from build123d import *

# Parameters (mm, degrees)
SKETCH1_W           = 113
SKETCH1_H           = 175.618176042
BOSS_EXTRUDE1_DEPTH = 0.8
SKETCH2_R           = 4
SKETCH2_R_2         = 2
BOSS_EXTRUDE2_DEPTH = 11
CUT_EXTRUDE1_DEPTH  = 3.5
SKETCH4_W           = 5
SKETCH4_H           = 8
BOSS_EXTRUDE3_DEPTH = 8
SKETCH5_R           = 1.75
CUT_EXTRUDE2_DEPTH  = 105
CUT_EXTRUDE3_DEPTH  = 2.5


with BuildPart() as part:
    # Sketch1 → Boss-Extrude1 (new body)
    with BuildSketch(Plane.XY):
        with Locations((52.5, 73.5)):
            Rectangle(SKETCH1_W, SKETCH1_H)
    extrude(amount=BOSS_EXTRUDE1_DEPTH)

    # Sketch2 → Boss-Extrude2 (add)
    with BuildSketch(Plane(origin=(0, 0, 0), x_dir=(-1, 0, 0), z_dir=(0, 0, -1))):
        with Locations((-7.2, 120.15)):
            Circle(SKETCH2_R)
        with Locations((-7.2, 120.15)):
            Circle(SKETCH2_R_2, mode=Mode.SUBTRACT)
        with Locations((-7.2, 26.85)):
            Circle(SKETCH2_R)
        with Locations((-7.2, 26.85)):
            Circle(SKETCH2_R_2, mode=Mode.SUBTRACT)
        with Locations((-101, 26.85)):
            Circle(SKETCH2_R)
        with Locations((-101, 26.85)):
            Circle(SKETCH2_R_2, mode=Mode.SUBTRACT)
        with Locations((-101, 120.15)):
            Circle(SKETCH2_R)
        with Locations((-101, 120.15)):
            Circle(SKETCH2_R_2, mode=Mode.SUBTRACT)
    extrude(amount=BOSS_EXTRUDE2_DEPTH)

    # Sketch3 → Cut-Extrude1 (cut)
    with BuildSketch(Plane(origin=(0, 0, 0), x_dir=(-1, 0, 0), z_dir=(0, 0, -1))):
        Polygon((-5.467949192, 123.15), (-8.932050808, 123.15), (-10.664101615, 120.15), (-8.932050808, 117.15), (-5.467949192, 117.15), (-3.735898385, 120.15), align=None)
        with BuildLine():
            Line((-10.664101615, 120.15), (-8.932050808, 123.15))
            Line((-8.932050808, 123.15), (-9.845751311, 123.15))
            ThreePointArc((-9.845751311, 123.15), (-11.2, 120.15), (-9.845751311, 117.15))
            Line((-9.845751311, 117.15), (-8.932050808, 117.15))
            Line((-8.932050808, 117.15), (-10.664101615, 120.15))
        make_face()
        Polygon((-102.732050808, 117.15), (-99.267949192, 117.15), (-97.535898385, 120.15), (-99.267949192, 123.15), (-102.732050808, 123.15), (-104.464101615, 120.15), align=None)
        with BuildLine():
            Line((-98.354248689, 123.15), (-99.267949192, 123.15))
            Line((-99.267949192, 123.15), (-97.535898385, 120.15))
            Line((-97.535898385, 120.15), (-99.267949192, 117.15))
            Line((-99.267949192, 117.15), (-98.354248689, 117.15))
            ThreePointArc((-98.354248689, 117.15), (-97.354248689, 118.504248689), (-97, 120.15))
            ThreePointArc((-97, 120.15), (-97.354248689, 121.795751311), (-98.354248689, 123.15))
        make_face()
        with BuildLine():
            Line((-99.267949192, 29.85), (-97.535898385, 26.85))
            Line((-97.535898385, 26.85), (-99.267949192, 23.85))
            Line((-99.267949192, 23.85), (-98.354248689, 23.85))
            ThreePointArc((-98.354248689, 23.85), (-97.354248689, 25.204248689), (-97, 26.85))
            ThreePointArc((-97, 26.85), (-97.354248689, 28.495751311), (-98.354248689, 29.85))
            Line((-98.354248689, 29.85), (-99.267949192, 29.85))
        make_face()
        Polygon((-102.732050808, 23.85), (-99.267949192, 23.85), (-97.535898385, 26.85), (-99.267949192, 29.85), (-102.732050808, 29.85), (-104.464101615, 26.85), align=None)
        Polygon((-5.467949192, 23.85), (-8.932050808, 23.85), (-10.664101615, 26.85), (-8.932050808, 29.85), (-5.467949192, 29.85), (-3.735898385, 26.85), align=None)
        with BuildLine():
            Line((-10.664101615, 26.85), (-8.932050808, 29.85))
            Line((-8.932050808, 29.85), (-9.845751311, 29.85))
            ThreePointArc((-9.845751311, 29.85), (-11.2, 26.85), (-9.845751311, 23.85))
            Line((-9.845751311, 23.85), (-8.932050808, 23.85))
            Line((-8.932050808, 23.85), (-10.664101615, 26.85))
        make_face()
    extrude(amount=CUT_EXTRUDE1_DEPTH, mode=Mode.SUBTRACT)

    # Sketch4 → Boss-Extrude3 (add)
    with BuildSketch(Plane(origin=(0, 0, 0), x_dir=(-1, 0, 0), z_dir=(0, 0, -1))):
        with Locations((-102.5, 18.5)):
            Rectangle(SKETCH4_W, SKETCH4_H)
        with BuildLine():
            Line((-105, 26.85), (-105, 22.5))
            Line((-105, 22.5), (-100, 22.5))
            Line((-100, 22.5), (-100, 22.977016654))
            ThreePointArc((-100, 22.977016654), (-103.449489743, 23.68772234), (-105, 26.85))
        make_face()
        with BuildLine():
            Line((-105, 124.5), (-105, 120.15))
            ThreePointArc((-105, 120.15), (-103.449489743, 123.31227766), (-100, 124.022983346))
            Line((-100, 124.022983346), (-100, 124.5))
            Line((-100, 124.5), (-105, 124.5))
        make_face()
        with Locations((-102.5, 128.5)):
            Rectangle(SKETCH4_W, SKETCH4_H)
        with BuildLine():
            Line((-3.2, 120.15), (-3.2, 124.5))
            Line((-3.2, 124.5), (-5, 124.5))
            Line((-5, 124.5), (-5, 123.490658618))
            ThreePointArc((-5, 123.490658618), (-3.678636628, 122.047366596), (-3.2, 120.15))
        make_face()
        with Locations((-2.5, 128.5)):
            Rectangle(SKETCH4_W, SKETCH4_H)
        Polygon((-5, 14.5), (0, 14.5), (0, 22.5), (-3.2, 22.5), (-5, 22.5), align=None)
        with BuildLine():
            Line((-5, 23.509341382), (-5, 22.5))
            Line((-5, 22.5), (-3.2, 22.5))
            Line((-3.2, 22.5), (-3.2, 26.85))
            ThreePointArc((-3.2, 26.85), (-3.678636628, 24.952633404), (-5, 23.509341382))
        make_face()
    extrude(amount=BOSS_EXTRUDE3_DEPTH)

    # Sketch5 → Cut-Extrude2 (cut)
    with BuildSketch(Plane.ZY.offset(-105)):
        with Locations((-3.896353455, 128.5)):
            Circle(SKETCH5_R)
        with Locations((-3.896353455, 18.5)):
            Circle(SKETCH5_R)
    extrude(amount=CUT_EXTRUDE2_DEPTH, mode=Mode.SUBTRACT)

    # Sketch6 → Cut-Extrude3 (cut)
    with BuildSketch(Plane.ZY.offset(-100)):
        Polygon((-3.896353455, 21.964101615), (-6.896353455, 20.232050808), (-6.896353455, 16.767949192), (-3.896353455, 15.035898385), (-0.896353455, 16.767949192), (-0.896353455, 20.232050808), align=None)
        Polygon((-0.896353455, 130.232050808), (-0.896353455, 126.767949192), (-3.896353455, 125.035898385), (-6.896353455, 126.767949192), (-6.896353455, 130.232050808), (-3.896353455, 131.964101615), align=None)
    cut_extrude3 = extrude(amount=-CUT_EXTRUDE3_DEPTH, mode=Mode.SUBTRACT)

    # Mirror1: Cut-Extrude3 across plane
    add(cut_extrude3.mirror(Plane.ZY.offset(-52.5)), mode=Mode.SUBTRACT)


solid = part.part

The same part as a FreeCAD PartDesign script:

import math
import FreeCAD as App
import Part
import Sketcher
Q = App.Units.Quantity

doc = App.newDocument("Part")
body = doc.addObject("PartDesign::Body", "Body")

sketch1 = body.newObject("Sketcher::SketchObject", "Sketch")
sketch1.AttachmentSupport = (doc.getObject("XY_Plane"), [""])
sketch1.MapMode = "FlatFace"
sketch1.addGeometry([
    Part.LineSegment(App.Vector(-4, 161, 0), App.Vector(-4, -14, 0)),
    Part.LineSegment(App.Vector(-4, -14, 0), App.Vector(109, -14, 0)),
    Part.LineSegment(App.Vector(109, -14, 0), App.Vector(109, 161, 0)),
    Part.LineSegment(App.Vector(109, 161, 0), App.Vector(-4, 161, 0)),
], False)
sketch1.addConstraint([
    Sketcher.Constraint("Coincident", 0, 2, 1, 1),
    Sketcher.Constraint("Coincident", 1, 2, 2, 1),
    Sketcher.Constraint("Coincident", 2, 2, 3, 1),
    Sketcher.Constraint("Coincident", 3, 2, 0, 1),
    Sketcher.Constraint("Vertical", 0),
    Sketcher.Constraint("Horizontal", 1),
    Sketcher.Constraint("Vertical", 2),
    Sketcher.Constraint("Horizontal", 3),
    Sketcher.Constraint("DistanceX", 1, 1, 1, 2, Q("113 mm")),
    Sketcher.Constraint("DistanceX", 0, 2, -1, 1, Q("4 mm")),
    Sketcher.Constraint("DistanceY", 0, 2, 0, 1, Q("175.618176 mm")),
    Sketcher.Constraint("DistanceY", 0, 2, -1, 1, Q("14.309088 mm")),
])
pad1 = body.newObject("PartDesign::Pad", "Pad")
pad1.Profile = sketch1
pad1.Length = 0.8

sketch2 = body.newObject("Sketcher::SketchObject", "Sketch001")
sketch2.AttachmentSupport = (doc.getObject("XY_Plane"), [""])
sketch2.MapMode = "FlatFace"
sketch2.addGeometry([
    Part.Circle(App.Vector(7.2, 120.2, 0), App.Vector(0, 0, 1), 4),
    Part.Circle(App.Vector(7.2, 120.2, 0), App.Vector(0, 0, 1), 2),
    Part.Circle(App.Vector(7.2, 26.9, 0), App.Vector(0, 0, 1), 4),
    Part.Circle(App.Vector(7.2, 26.9, 0), App.Vector(0, 0, 1), 2),
    Part.Circle(App.Vector(101, 26.9, 0), App.Vector(0, 0, 1), 4),
    Part.Circle(App.Vector(101, 26.9, 0), App.Vector(0, 0, 1), 2),
    Part.Circle(App.Vector(101, 120.2, 0), App.Vector(0, 0, 1), 4),
    Part.Circle(App.Vector(101, 120.2, 0), App.Vector(0, 0, 1), 2),
], False)
sketch2.addConstraint([
    Sketcher.Constraint("Coincident", 1, 3, 0, 3),
    Sketcher.Constraint("Coincident", 3, 3, 2, 3),
    Sketcher.Constraint("Coincident", 5, 3, 4, 3),
    Sketcher.Constraint("Coincident", 7, 3, 6, 3),
    Sketcher.Constraint("Equal", 0, 2),
    Sketcher.Constraint("Equal", 1, 3),
    Sketcher.Constraint("Equal", 2, 4),
    Sketcher.Constraint("Equal", 3, 5),
    Sketcher.Constraint("Equal", 4, 6),
    Sketcher.Constraint("Equal", 5, 7),
    Sketcher.Constraint("Horizontal", 3, 3, 4, 3),
    Sketcher.Constraint("Horizontal", 1, 3, 6, 3),
    Sketcher.Constraint("Vertical", 1, 3, 2, 3),
    Sketcher.Constraint("Vertical", 5, 3, 6, 3),
    Sketcher.Constraint("Diameter", 0, Q("8 mm")),
    Sketcher.Constraint("Diameter", 1, Q("4 mm")),
    Sketcher.Constraint("DistanceX", -1, 1, 4, 3, Q("101 mm")),
    Sketcher.Constraint("DistanceX", -1, 1, 0, 3, Q("7.2 mm")),
    Sketcher.Constraint("DistanceY", 2, 3, 0, 3, Q("93.3 mm")),
    Sketcher.Constraint("DistanceY", -1, 1, 0, 3, Q("120.15 mm")),
])
pad2 = body.newObject("PartDesign::Pad", "Pad001")
pad2.Profile = sketch2
pad2.Length = 11
pad2.Reversed = True

sketch3 = body.newObject("Sketcher::SketchObject", "Sketch002")
sketch3.AttachmentSupport = (doc.getObject("XY_Plane"), [""])
sketch3.MapMode = "FlatFace"
sketch3.addGeometry([
    Part.LineSegment(App.Vector(5.5, 123.2, 0), App.Vector(9.8, 123.2, 0)),
    Part.ArcOfCircle(Part.Circle(App.Vector(7.2, 120.2, 0), App.Vector(0, 0, 1), 4), math.radians(-49), math.radians(49)),
    Part.LineSegment(App.Vector(9.8, 117.2, 0), App.Vector(5.5, 117.2, 0)),
    Part.LineSegment(App.Vector(5.5, 117.2, 0), App.Vector(3.7, 120.2, 0)),
    Part.LineSegment(App.Vector(3.7, 120.2, 0), App.Vector(5.5, 123.2, 0)),
    Part.LineSegment(App.Vector(102.7, 117.2, 0), App.Vector(98.4, 117.2, 0)),
    Part.ArcOfCircle(Part.Circle(App.Vector(101, 120.2, 0), App.Vector(0, 0, 1), 4), math.radians(180), math.radians(229)),
    Part.ArcOfCircle(Part.Circle(App.Vector(101, 120.2, 0), App.Vector(0, 0, 1), 4), math.radians(131), math.radians(180)),
    Part.LineSegment(App.Vector(98.4, 123.2, 0), App.Vector(102.7, 123.2, 0)),
    Part.LineSegment(App.Vector(102.7, 123.2, 0), App.Vector(104.5, 120.2, 0)),
    Part.LineSegment(App.Vector(104.5, 120.2, 0), App.Vector(102.7, 117.2, 0)),
    Part.ArcOfCircle(Part.Circle(App.Vector(101, 26.9, 0), App.Vector(0, 0, 1), 4), math.radians(180), math.radians(229)),
    Part.ArcOfCircle(Part.Circle(App.Vector(101, 26.9, 0), App.Vector(0, 0, 1), 4), math.radians(131), math.radians(180)),
    Part.LineSegment(App.Vector(98.4, 29.9, 0), App.Vector(102.7, 29.9, 0)),
    Part.LineSegment(App.Vector(102.7, 29.9, 0), App.Vector(104.5, 26.9, 0)),
    Part.LineSegment(App.Vector(104.5, 26.9, 0), App.Vector(102.7, 23.9, 0)),
    Part.LineSegment(App.Vector(102.7, 23.9, 0), App.Vector(98.4, 23.9, 0)),
    Part.LineSegment(App.Vector(9.8, 23.9, 0), App.Vector(5.5, 23.9, 0)),
    Part.LineSegment(App.Vector(5.5, 23.9, 0), App.Vector(3.7, 26.9, 0)),
    Part.LineSegment(App.Vector(3.7, 26.9, 0), App.Vector(5.5, 29.9, 0)),
    Part.LineSegment(App.Vector(5.5, 29.9, 0), App.Vector(9.8, 29.9, 0)),
    Part.ArcOfCircle(Part.Circle(App.Vector(7.2, 26.9, 0), App.Vector(0, 0, 1), 4), math.radians(-49), math.radians(49)),
], False)
sketch3.addConstraint([
    Sketcher.Constraint("Coincident", 0, 2, 1, 2),
    Sketcher.Constraint("Coincident", 1, 1, 2, 1),
    Sketcher.Constraint("Coincident", 2, 2, 3, 1),
    Sketcher.Constraint("Coincident", 3, 2, 4, 1),
    Sketcher.Constraint("Coincident", 4, 2, 0, 1),
    Sketcher.Constraint("Coincident", 5, 2, 6, 2),
    Sketcher.Constraint("Tangent", 6, 1, 7, 2),
    Sketcher.Constraint("Coincident", 7, 1, 8, 1),
    Sketcher.Constraint("Coincident", 8, 2, 9, 1),
    Sketcher.Constraint("Coincident", 9, 2, 10, 1),
    Sketcher.Constraint("Coincident", 10, 2, 5, 1),
    Sketcher.Constraint("Tangent", 11, 1, 12, 2),
    Sketcher.Constraint("Coincident", 12, 1, 13, 1),
    Sketcher.Constraint("Coincident", 13, 2, 14, 1),
    Sketcher.Constraint("Coincident", 14, 2, 15, 1),
    Sketcher.Constraint("Coincident", 15, 2, 16, 1),
    Sketcher.Constraint("Coincident", 16, 2, 11, 2),
    Sketcher.Constraint("Coincident", 17, 2, 18, 1),
    Sketcher.Constraint("Coincident", 18, 2, 19, 1),
    Sketcher.Constraint("Coincident", 19, 2, 20, 1),
    Sketcher.Constraint("Coincident", 20, 2, 21, 2),
    Sketcher.Constraint("Coincident", 21, 1, 17, 1),
    Sketcher.Constraint("Horizontal", 0),
    Sketcher.Constraint("Horizontal", 2),
    Sketcher.Constraint("Horizontal", 5),
    Sketcher.Constraint("Horizontal", 8),
    Sketcher.Constraint("Horizontal", 13),
    Sketcher.Constraint("Horizontal", 16),
    Sketcher.Constraint("Horizontal", 17),
    Sketcher.Constraint("Horizontal", 20),
    Sketcher.Constraint("Equal", 1, 6),
    Sketcher.Constraint("Equal", 6, 7),
    Sketcher.Constraint("Equal", 7, 11),
    Sketcher.Constraint("Equal", 11, 12),
    Sketcher.Constraint("Equal", 12, 21),
    Sketcher.Constraint("Parallel", 3, 9),
    Sketcher.Constraint("Parallel", 4, 10),
    Sketcher.Constraint("Parallel", 9, 14),
    Sketcher.Constraint("Parallel", 10, 15),
    Sketcher.Constraint("Parallel", 14, 18),
    Sketcher.Constraint("Parallel", 15, 19),
    Sketcher.Constraint("Horizontal", 1, 3, 6, 3),
    Sketcher.Constraint("Horizontal", 12, 3, 21, 3),
    Sketcher.Constraint("Horizontal", 7, 3, 3, 2),
    Sketcher.Constraint("Horizontal", 2, 2, 5, 2),
    Sketcher.Constraint("Horizontal", 3, 2, 6, 1),
    Sketcher.Constraint("Horizontal", 4, 2, 7, 1),
    Sketcher.Constraint("Horizontal", 6, 1, 9, 2),
    Sketcher.Constraint("Horizontal", 21, 3, 11, 1),
    Sketcher.Constraint("Horizontal", 11, 1, 14, 2),
    Sketcher.Constraint("Horizontal", 16, 2, 17, 2),
    Sketcher.Constraint("Horizontal", 14, 2, 18, 2),
    Sketcher.Constraint("Horizontal", 13, 2, 19, 2),
    Sketcher.Constraint("Vertical", 7, 3, 11, 3),
    Sketcher.Constraint("Vertical", 1, 3, 21, 3),
    Sketcher.Constraint("Vertical", 0, 2, 1, 1),
    Sketcher.Constraint("Vertical", 2, 2, 4, 2),
    Sketcher.Constraint("Vertical", 7, 1, 12, 1),
    Sketcher.Constraint("Vertical", 10, 2, 13, 2),
    Sketcher.Constraint("Vertical", 13, 2, 15, 2),
    Sketcher.Constraint("Vertical", 4, 2, 17, 2),
    Sketcher.Constraint("Equal", 2, 5),
    Sketcher.Constraint("Radius", 1, Q("4 mm")),
    Sketcher.Constraint("Angle", 3, Q("120 deg")),
    Sketcher.Constraint("DistanceX", -1, 1, 6, 3, Q("101 mm")),
    Sketcher.Constraint("DistanceY", 1, 3, 0, 2, Q("3 mm")),
    Sketcher.Constraint("DistanceX", -1, 1, 1, 3, Q("7.2 mm")),
    Sketcher.Constraint("DistanceY", 11, 3, 6, 3, Q("93.3 mm")),
    Sketcher.Constraint("DistanceY", -1, 1, 1, 3, Q("120.15 mm")),
    Sketcher.Constraint("DistanceX", -1, 1, 3, 2, Q("3.735898 mm")),
])
pocket1 = body.newObject("PartDesign::Pocket", "Pocket")
pocket1.Profile = sketch3
pocket1.Length = 3.5

sketch4 = body.newObject("Sketcher::SketchObject", "Sketch003")
sketch4.AttachmentSupport = (doc.getObject("XY_Plane"), [""])
sketch4.MapMode = "FlatFace"
sketch4.addGeometry([
    Part.LineSegment(App.Vector(105, 14.5, 0), App.Vector(100, 14.5, 0)),
    Part.LineSegment(App.Vector(100, 14.5, 0), App.Vector(100, 23, 0)),
    Part.ArcOfCircle(Part.Circle(App.Vector(101, 26.9, 0), App.Vector(0, 0, 1), 4), math.radians(-104), math.radians(0)),
    Part.LineSegment(App.Vector(105, 26.9, 0), App.Vector(105, 14.5, 0)),
    Part.ArcOfCircle(Part.Circle(App.Vector(101, 120.2, 0), App.Vector(0, 0, 1), 4), math.radians(0), math.radians(104)),
    Part.LineSegment(App.Vector(100, 124, 0), App.Vector(100, 132.5, 0)),
    Part.LineSegment(App.Vector(100, 132.5, 0), App.Vector(105, 132.5, 0)),
    Part.LineSegment(App.Vector(105, 132.5, 0), App.Vector(105, 120.2, 0)),
    Part.LineSegment(App.Vector(3.2, 120.2, 0), App.Vector(3.2, 124.5, 0)),
    Part.LineSegment(App.Vector(3.2, 124.5, 0), App.Vector(0, 124.5, 0)),
    Part.LineSegment(App.Vector(0, 124.5, 0), App.Vector(0, 132.5, 0)),
    Part.LineSegment(App.Vector(0, 132.5, 0), App.Vector(5, 132.5, 0)),
    Part.LineSegment(App.Vector(5, 132.5, 0), App.Vector(5, 123.5, 0)),
    Part.ArcOfCircle(Part.Circle(App.Vector(7.2, 120.1, 0), App.Vector(0, 0, 1), 4), math.radians(123), math.radians(180)),
    Part.LineSegment(App.Vector(5, 14.5, 0), App.Vector(0, 14.5, 0)),
    Part.LineSegment(App.Vector(0, 14.5, 0), App.Vector(0, 22.5, 0)),
    Part.LineSegment(App.Vector(0, 22.5, 0), App.Vector(3.2, 22.5, 0)),
    Part.LineSegment(App.Vector(3.2, 22.5, 0), App.Vector(3.2, 26.9, 0)),
    Part.ArcOfCircle(Part.Circle(App.Vector(7.2, 26.9, 0), App.Vector(0, 0, 1), 4), math.radians(-180), math.radians(-123)),
    Part.LineSegment(App.Vector(5, 23.5, 0), App.Vector(5, 14.5, 0)),
], False)
sketch4.addConstraint([
    Sketcher.Constraint("Coincident", 0, 2, 1, 1),
    Sketcher.Constraint("Coincident", 1, 2, 2, 1),
    Sketcher.Constraint("Tangent", 2, 2, 3, 1),
    Sketcher.Constraint("Coincident", 3, 2, 0, 1),
    Sketcher.Constraint("Coincident", 4, 2, 5, 1),
    Sketcher.Constraint("Coincident", 5, 2, 6, 1),
    Sketcher.Constraint("Coincident", 6, 2, 7, 1),
    Sketcher.Constraint("Tangent", 7, 2, 4, 1),
    Sketcher.Constraint("Coincident", 8, 2, 9, 1),
    Sketcher.Constraint("Coincident", 9, 2, 10, 1),
    Sketcher.Constraint("Coincident", 10, 2, 11, 1),
    Sketcher.Constraint("Coincident", 11, 2, 12, 1),
    Sketcher.Constraint("Coincident", 12, 2, 13, 1),
    Sketcher.Constraint("Tangent", 13, 2, 8, 1),
    Sketcher.Constraint("Coincident", 14, 2, 15, 1),
    Sketcher.Constraint("Coincident", 15, 2, 16, 1),
    Sketcher.Constraint("Coincident", 16, 2, 17, 1),
    Sketcher.Constraint("Tangent", 17, 2, 18, 1),
    Sketcher.Constraint("Coincident", 18, 2, 19, 1),
    Sketcher.Constraint("Coincident", 19, 2, 14, 1),
    Sketcher.Constraint("Horizontal", 0),
    Sketcher.Constraint("Vertical", 1),
    Sketcher.Constraint("Vertical", 3),
    Sketcher.Constraint("Vertical", 5),
    Sketcher.Constraint("Horizontal", 6),
    Sketcher.Constraint("Vertical", 7),
    Sketcher.Constraint("Vertical", 8),
    Sketcher.Constraint("Horizontal", 9),
    Sketcher.Constraint("Vertical", 10),
    Sketcher.Constraint("Horizontal", 11),
    Sketcher.Constraint("Vertical", 12),
    Sketcher.Constraint("Horizontal", 14),
    Sketcher.Constraint("Vertical", 15),
    Sketcher.Constraint("Horizontal", 16),
    Sketcher.Constraint("Vertical", 17),
    Sketcher.Constraint("Vertical", 19),
    Sketcher.Constraint("Equal", 2, 4),
    Sketcher.Constraint("Equal", 4, 13),
    Sketcher.Constraint("Equal", 13, 18),
    Sketcher.Constraint("PointOnObject", 9, 2, -2),
    Sketcher.Constraint("PointOnObject", 14, 2, -2),
    Sketcher.Constraint("Horizontal", 4, 3, 13, 3),
    Sketcher.Constraint("Horizontal", 2, 3, 18, 3),
    Sketcher.Constraint("Horizontal", 6, 2, 10, 2),
    Sketcher.Constraint("Horizontal", 3, 2, 14, 2),
    Sketcher.Constraint("Vertical", 2, 3, 4, 3),
    Sketcher.Constraint("Vertical", 13, 3, 18, 3),
    Sketcher.Constraint("Vertical", 1, 2, 4, 2),
    Sketcher.Constraint("Vertical", 12, 2, 18, 2),
    Sketcher.Constraint("Equal", 6, 11),
    Sketcher.Constraint("Equal", 1, 5),
    Sketcher.Constraint("Equal", 10, 15),
    Sketcher.Constraint("Radius", 2, Q("4 mm")),
    Sketcher.Constraint("DistanceX", 0, 2, 0, 1, Q("5 mm")),
    Sketcher.Constraint("DistanceY", 10, 1, 10, 2, Q("8 mm")),
    Sketcher.Constraint("DistanceX", 9, 2, 9, 1, Q("3.2 mm")),
    Sketcher.Constraint("DistanceX", -1, 1, 2, 3, Q("101 mm")),
    Sketcher.Constraint("DistanceY", 3, 2, 3, 1, Q("12.35 mm")),
    Sketcher.Constraint("DistanceY", -1, 1, 0, 2, Q("14.5 mm")),
    Sketcher.Constraint("DistanceY", -1, 1, 5, 2, Q("132.5 mm")),
])
pad3 = body.newObject("PartDesign::Pad", "Pad002")
pad3.Profile = sketch4
pad3.Length = 8
pad3.Reversed = True

sketch5 = body.newObject("Sketcher::SketchObject", "Sketch004")
sketch5.AttachmentSupport = (doc.getObject("YZ_Plane"), [""])
sketch5.MapMode = "FlatFace"
sketch5.AttachmentOffset = App.Placement(App.Vector(0, 0, 105), App.Rotation())
sketch5.addGeometry([
    Part.Circle(App.Vector(128.5, -3.9, 0), App.Vector(0, 0, 1), 1.8),
    Part.Circle(App.Vector(18.5, -3.9, 0), App.Vector(0, 0, 1), 1.8),
], False)
sketch5.addConstraint([
    Sketcher.Constraint("Equal", 0, 1),
    Sketcher.Constraint("Horizontal", 0, 3, 1, 3),
    Sketcher.Constraint("Diameter", 0, Q("3.5 mm")),
    Sketcher.Constraint("DistanceX", 1, 3, 0, 3, Q("110 mm")),
    Sketcher.Constraint("DistanceX", -1, 1, 0, 3, Q("128.5 mm")),
    Sketcher.Constraint("DistanceY", 0, 3, -1, 1, Q("3.896353 mm")),
])
pocket2 = body.newObject("PartDesign::Pocket", "Pocket001")
pocket2.Profile = sketch5
pocket2.Length = 105

sketch6 = body.newObject("Sketcher::SketchObject", "Sketch005")
sketch6.AttachmentSupport = (doc.getObject("YZ_Plane"), [""])
sketch6.MapMode = "FlatFace"
sketch6.AttachmentOffset = App.Placement(App.Vector(0, 0, 100), App.Rotation())
sketch6.addGeometry([
    Part.LineSegment(App.Vector(22, -3.9, 0), App.Vector(20.2, -6.9, 0)),
    Part.LineSegment(App.Vector(20.2, -6.9, 0), App.Vector(16.8, -6.9, 0)),
    Part.LineSegment(App.Vector(16.8, -6.9, 0), App.Vector(15, -3.9, 0)),
    Part.LineSegment(App.Vector(15, -3.9, 0), App.Vector(16.8, -0.9, 0)),
    Part.LineSegment(App.Vector(16.8, -0.9, 0), App.Vector(20.2, -0.9, 0)),
    Part.LineSegment(App.Vector(20.2, -0.9, 0), App.Vector(22, -3.9, 0)),
    Part.LineSegment(App.Vector(126.8, -0.9, 0), App.Vector(130.2, -0.9, 0)),
    Part.LineSegment(App.Vector(130.2, -0.9, 0), App.Vector(132, -3.9, 0)),
    Part.LineSegment(App.Vector(132, -3.9, 0), App.Vector(130.2, -6.9, 0)),
    Part.LineSegment(App.Vector(130.2, -6.9, 0), App.Vector(126.8, -6.9, 0)),
    Part.LineSegment(App.Vector(126.8, -6.9, 0), App.Vector(125, -3.9, 0)),
    Part.LineSegment(App.Vector(125, -3.9, 0), App.Vector(126.8, -0.9, 0)),
], False)
sketch6.addConstraint([
    Sketcher.Constraint("Coincident", 0, 2, 1, 1),
    Sketcher.Constraint("Coincident", 1, 2, 2, 1),
    Sketcher.Constraint("Coincident", 2, 2, 3, 1),
    Sketcher.Constraint("Coincident", 3, 2, 4, 1),
    Sketcher.Constraint("Coincident", 4, 2, 5, 1),
    Sketcher.Constraint("Coincident", 5, 2, 0, 1),
    Sketcher.Constraint("Coincident", 6, 2, 7, 1),
    Sketcher.Constraint("Coincident", 7, 2, 8, 1),
    Sketcher.Constraint("Coincident", 8, 2, 9, 1),
    Sketcher.Constraint("Coincident", 9, 2, 10, 1),
    Sketcher.Constraint("Coincident", 10, 2, 11, 1),
    Sketcher.Constraint("Coincident", 11, 2, 6, 1),
    Sketcher.Constraint("Horizontal", 1),
    Sketcher.Constraint("Horizontal", 4),
    Sketcher.Constraint("Horizontal", 6),
    Sketcher.Constraint("Horizontal", 9),
    Sketcher.Constraint("Parallel", 0, 3),
    Sketcher.Constraint("Parallel", 2, 5),
    Sketcher.Constraint("Parallel", 5, 7),
    Sketcher.Constraint("Parallel", 3, 8),
    Sketcher.Constraint("Parallel", 7, 10),
    Sketcher.Constraint("Parallel", 8, 11),
    Sketcher.Constraint("Horizontal", 2, 2, 5, 2),
    Sketcher.Constraint("Horizontal", 4, 2, 6, 2),
    Sketcher.Constraint("Horizontal", 5, 2, 7, 2),
    Sketcher.Constraint("Horizontal", 1, 2, 8, 2),
    Sketcher.Constraint("Horizontal", 7, 2, 10, 2),
    Sketcher.Constraint("Vertical", 1, 2, 3, 2),
    Sketcher.Constraint("Vertical", 0, 2, 4, 2),
    Sketcher.Constraint("Equal", 4, 6),
    Sketcher.Constraint("Angle", 0, Q("-120 deg")),
    Sketcher.Constraint("DistanceY", 1, 2, 2, 2, Q("3 mm")),
    Sketcher.Constraint("DistanceX", 4, 2, 6, 2, Q("110 mm")),
    Sketcher.Constraint("DistanceX", 1, 2, 1, 1, Q("3.464102 mm")),
    Sketcher.Constraint("DistanceX", -1, 1, 2, 2, Q("15.035898 mm")),
    Sketcher.Constraint("DistanceY", 0, 2, -1, 1, Q("6.896353 mm")),
])
pocket3 = body.newObject("PartDesign::Pocket", "Pocket002")
pocket3.Profile = sketch6
pocket3.Length = 2.5
pocket3.Reversed = True
doc.recompute()

datumplane = body.newObject("PartDesign::Plane", "DatumPlane")
datumplane.AttachmentSupport = (doc.getObject("YZ_Plane"), [""])
datumplane.MapMode = "FlatFace"
datumplane.AttachmentOffset = App.Placement(App.Vector(0, 0, 52.5), App.Rotation())
mirrored = body.newObject("PartDesign::Mirrored", "Mirrored")
mirrored.Originals = [pocket3]
mirrored.MirrorPlane = (datumplane, [""])
body.Tip = mirrored

doc.recompute()
